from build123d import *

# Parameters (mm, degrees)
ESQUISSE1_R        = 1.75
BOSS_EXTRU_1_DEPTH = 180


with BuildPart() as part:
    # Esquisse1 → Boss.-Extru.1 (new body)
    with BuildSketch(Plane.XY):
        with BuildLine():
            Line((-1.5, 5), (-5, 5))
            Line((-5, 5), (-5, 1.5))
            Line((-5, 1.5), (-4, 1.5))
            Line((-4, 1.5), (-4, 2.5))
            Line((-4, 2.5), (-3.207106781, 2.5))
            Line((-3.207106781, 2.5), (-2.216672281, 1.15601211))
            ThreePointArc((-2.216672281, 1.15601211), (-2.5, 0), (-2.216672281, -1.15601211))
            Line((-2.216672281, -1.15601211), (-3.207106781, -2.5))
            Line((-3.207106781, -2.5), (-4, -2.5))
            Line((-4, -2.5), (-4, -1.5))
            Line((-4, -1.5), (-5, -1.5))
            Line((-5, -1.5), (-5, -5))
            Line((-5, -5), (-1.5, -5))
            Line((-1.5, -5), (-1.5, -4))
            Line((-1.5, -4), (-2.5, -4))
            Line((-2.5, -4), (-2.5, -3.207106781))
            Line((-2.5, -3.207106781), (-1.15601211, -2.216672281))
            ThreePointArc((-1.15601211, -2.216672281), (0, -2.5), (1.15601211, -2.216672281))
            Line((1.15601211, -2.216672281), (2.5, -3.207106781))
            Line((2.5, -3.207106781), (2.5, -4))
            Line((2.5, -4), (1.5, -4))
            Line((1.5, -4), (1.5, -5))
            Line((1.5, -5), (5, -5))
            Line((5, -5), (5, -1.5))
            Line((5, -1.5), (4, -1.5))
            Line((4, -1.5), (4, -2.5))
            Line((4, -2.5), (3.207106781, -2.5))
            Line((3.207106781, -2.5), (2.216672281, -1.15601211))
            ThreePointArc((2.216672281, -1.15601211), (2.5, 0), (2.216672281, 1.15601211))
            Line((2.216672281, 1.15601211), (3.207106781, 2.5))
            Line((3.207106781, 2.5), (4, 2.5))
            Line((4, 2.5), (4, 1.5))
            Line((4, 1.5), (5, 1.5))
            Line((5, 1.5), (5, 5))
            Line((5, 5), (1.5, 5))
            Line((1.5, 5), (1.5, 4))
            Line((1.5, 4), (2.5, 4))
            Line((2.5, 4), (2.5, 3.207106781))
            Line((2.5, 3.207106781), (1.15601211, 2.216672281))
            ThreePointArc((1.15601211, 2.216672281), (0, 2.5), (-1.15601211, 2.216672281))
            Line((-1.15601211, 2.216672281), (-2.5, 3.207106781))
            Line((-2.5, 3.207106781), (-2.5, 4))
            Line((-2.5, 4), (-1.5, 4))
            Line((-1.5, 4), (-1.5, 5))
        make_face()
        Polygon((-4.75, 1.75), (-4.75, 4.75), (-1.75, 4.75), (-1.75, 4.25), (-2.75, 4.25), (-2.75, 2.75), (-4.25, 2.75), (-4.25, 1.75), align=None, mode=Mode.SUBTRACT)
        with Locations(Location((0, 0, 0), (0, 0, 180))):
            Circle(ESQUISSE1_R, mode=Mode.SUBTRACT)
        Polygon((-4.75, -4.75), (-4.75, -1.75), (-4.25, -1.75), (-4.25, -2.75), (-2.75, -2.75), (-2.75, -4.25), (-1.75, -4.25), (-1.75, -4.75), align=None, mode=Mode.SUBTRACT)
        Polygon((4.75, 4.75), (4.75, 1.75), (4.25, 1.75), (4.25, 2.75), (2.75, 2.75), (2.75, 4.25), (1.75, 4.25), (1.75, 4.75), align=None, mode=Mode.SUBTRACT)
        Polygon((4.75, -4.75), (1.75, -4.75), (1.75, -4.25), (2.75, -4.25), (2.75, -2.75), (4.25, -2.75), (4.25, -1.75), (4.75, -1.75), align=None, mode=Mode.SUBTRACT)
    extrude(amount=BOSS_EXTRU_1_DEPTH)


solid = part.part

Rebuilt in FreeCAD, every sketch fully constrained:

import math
import FreeCAD as App
import Part
import Sketcher
from FreeCAD import Vector

doc = App.newDocument("Part")
params = doc.addObject("Spreadsheet::Sheet", "Params")
for row, (alias, value) in enumerate([
    ("sketch1_diameter", "3.5 mm"),
    ("sketch1_radius", "2.5 mm"),
    ("sketch1_width", "1 mm"),
    ("sketch1_width2", "3 mm"),
    ("sketch1_width3", "3.5 mm"),
    ("pad1_length", "180 mm"),
], start=1):
    params.set(f"A{row}", alias)
    params.set(f"B{row}", "=" + value)
    params.setAlias(f"B{row}", alias)

body = doc.addObject("PartDesign::Body", "Body")

# Sketch on XY plane
sketch1 = body.newObject("Sketcher::SketchObject", "Sketch")
sketch1.AttachmentSupport = (doc.getObject("XY_Plane"), [""])
sketch1.MapMode = "FlatFace"
sketch1.addGeometry(Part.LineSegment(Vector(-1.5, 5, 0), Vector(-5, 5, 0)), False)
sketch1.addGeometry(Part.LineSegment(Vector(-5, 5, 0), Vector(-5, 1.5, 0)), False)
sketch1.addGeometry(Part.LineSegment(Vector(-5, 1.5, 0), Vector(-4, 1.5, 0)), False)
sketch1.addGeometry(Part.LineSegment(Vector(-4, 1.5, 0), Vector(-4, 2.5, 0)), False)
sketch1.addGeometry(Part.LineSegment(Vector(-4, 2.5, 0), Vector(-3.207107, 2.5, 0)), False)
sketch1.addGeometry(Part.LineSegment(Vector(-3.207107, 2.5, 0), Vector(-2.216672, 1.156012, 0)), False)
sketch1.addGeometry(Part.ArcOfCircle(Part.Circle(Vector(0, 0, 0), Vector(0, 0, 1), 2.5), math.radians(152.457603), math.radians(207.542397)), False)
sketch1.addGeometry(Part.LineSegment(Vector(-2.216672, -1.156012, 0), Vector(-3.207107, -2.5, 0)), False)
sketch1.addGeometry(Part.LineSegment(Vector(-3.207107, -2.5, 0), Vector(-4, -2.5, 0)), False)
sketch1.addGeometry(Part.LineSegment(Vector(-4, -2.5, 0), Vector(-4, -1.5, 0)), False)
sketch1.addGeometry(Part.LineSegment(Vector(-4, -1.5, 0), Vector(-5, -1.5, 0)), False)
sketch1.addGeometry(Part.LineSegment(Vector(-5, -1.5, 0), Vector(-5, -5, 0)), False)
sketch1.addGeometry(Part.LineSegment(Vector(-5, -5, 0), Vector(-1.5, -5, 0)), False)
sketch1.addGeometry(Part.LineSegment(Vector(-1.5, -5, 0), Vector(-1.5, -4, 0)), False)
sketch1.addGeometry(Part.LineSegment(Vector(-1.5, -4, 0), Vector(-2.5, -4, 0)), False)
sketch1.addGeometry(Part.LineSegment(Vector(-2.5, -4, 0), Vector(-2.5, -3.207107, 0)), False)
sketch1.addGeometry(Part.LineSegment(Vector(-2.5, -3.207107, 0), Vector(-1.156012, -2.216672, 0)), False)
sketch1.addGeometry(Part.ArcOfCircle(Part.Circle(Vector(0, 0, 0), Vector(0, 0, 1), 2.5), math.radians(-117.542397), math.radians(-62.457603)), False)
sketch1.addGeometry(Part.LineSegment(Vector(1.156012, -2.216672, 0), Vector(2.5, -3.207107, 0)), False)
sketch1.addGeometry(Part.LineSegment(Vector(2.5, -3.207107, 0), Vector(2.5, -4, 0)), False)
sketch1.addGeometry(Part.LineSegment(Vector(2.5, -4, 0), Vector(1.5, -4, 0)), False)
sketch1.addGeometry(Part.LineSegment(Vector(1.5, -4, 0), Vector(1.5, -5, 0)), False)
sketch1.addGeometry(Part.LineSegment(Vector(1.5, -5, 0), Vector(5, -5, 0)), False)
sketch1.addGeometry(Part.LineSegment(Vector(5, -5, 0), Vector(5, -1.5, 0)), False)
sketch1.addGeometry(Part.LineSegment(Vector(5, -1.5, 0), Vector(4, -1.5, 0)), False)
sketch1.addGeometry(Part.LineSegment(Vector(4, -1.5, 0), Vector(4, -2.5, 0)), False)
sketch1.addGeometry(Part.LineSegment(Vector(4, -2.5, 0), Vector(3.207107, -2.5, 0)), False)
sketch1.addGeometry(Part.LineSegment(Vector(3.207107, -2.5, 0), Vector(2.216672, -1.156012, 0)), False)
sketch1.addGeometry(Part.ArcOfCircle(Part.Circle(Vector(0, 0, 0), Vector(0, 0, 1), 2.5), math.radians(-27.542397), math.radians(27.542397)), False)
sketch1.addGeometry(Part.LineSegment(Vector(2.216672, 1.156012, 0), Vector(3.207107, 2.5, 0)), False)
sketch1.addGeometry(Part.LineSegment(Vector(3.207107, 2.5, 0), Vector(4, 2.5, 0)), False)
sketch1.addGeometry(Part.LineSegment(Vector(4, 2.5, 0), Vector(4, 1.5, 0)), False)
sketch1.addGeometry(Part.LineSegment(Vector(4, 1.5, 0), Vector(5, 1.5, 0)), False)
sketch1.addGeometry(Part.LineSegment(Vector(5, 1.5, 0), Vector(5, 5, 0)), False)
sketch1.addGeometry(Part.LineSegment(Vector(5, 5, 0), Vector(1.5, 5, 0)), False)
sketch1.addGeometry(Part.LineSegment(Vector(1.5, 5, 0), Vector(1.5, 4, 0)), False)
sketch1.addGeometry(Part.LineSegment(Vector(1.5, 4, 0), Vector(2.5, 4, 0)), False)
sketch1.addGeometry(Part.LineSegment(Vector(2.5, 4, 0), Vector(2.5, 3.207107, 0)), False)
sketch1.addGeometry(Part.LineSegment(Vector(2.5, 3.207107, 0), Vector(1.156012, 2.216672, 0)), False)
sketch1.addGeometry(Part.ArcOfCircle(Part.Circle(Vector(0, 0, 0), Vector(0, 0, 1), 2.5), math.radians(62.457603), math.radians(117.542397)), False)
sketch1.addGeometry(Part.LineSegment(Vector(-1.156012, 2.216672, 0), Vector(-2.5, 3.207107, 0)), False)
sketch1.addGeometry(Part.LineSegment(Vector(-2.5, 3.207107, 0), Vector(-2.5, 4, 0)), False)
sketch1.addGeometry(Part.LineSegment(Vector(-2.5, 4, 0), Vector(-1.5, 4, 0)), False)
sketch1.addGeometry(Part.LineSegment(Vector(-1.5, 4, 0), Vector(-1.5, 5, 0)), False)
sketch1.addGeometry(Part.LineSegment(Vector(-1.75, -4.75, 0), Vector(-4.75, -4.75, 0)), False)
sketch1.addGeometry(Part.LineSegment(Vector(-4.75, -4.75, 0), Vector(-4.75, -1.75, 0)), False)
sketch1.addGeometry(Part.LineSegment(Vector(-4.75, -1.75, 0), Vector(-4.25, -1.75, 0)), False)
sketch1.addGeometry(Part.LineSegment(Vector(-4.25, -1.75, 0), Vector(-4.25, -2.75, 0)), False)
sketch1.addGeometry(Part.LineSegment(Vector(-4.25, -2.75, 0), Vector(-2.75, -2.75, 0)), False)
sketch1.addGeometry(Part.LineSegment(Vector(-2.75, -2.75, 0), Vector(-2.75, -4.25, 0)), False)
sketch1.addGeometry(Part.LineSegment(Vector(-2.75, -4.25, 0), Vector(-1.75, -4.25, 0)), False)
sketch1.addGeometry(Part.LineSegment(Vector(-1.75, -4.25, 0), Vector(-1.75, -4.75, 0)), False)
sketch1.addGeometry(Part.LineSegment(Vector(4.75, -1.75, 0), Vector(4.75, -4.75, 0)), False)
sketch1.addGeometry(Part.LineSegment(Vector(4.75, -4.75, 0), Vector(1.75, -4.75, 0)), False)
sketch1.addGeometry(Part.LineSegment(Vector(1.75, -4.75, 0), Vector(1.75, -4.25, 0)), False)
sketch1.addGeometry(Part.LineSegment(Vector(1.75, -4.25, 0), Vector(2.75, -4.25, 0)), False)
sketch1.addGeometry(Part.LineSegment(Vector(2.75, -4.25, 0), Vector(2.75, -2.75, 0)), False)
sketch1.addGeometry(Part.LineSegment(Vector(2.75, -2.75, 0), Vector(4.25, -2.75, 0)), False)
sketch1.addGeometry(Part.LineSegment(Vector(4.25, -2.75, 0), Vector(4.25, -1.75, 0)), False)
sketch1.addGeometry(Part.LineSegment(Vector(4.25, -1.75, 0), Vector(4.75, -1.75, 0)), False)
sketch1.addGeometry(Part.LineSegment(Vector(-4.25, 1.75, 0), Vector(-4.75, 1.75, 0)), False)
sketch1.addGeometry(Part.LineSegment(Vector(-4.75, 1.75, 0), Vector(-4.75, 4.75, 0)), False)
sketch1.addGeometry(Part.LineSegment(Vector(-4.75, 4.75, 0), Vector(-1.75, 4.75, 0)), False)
sketch1.addGeometry(Part.LineSegment(Vector(-1.75, 4.75, 0), Vector(-1.75, 4.25, 0)), False)
sketch1.addGeometry(Part.LineSegment(Vector(-1.75, 4.25, 0), Vector(-2.75, 4.25, 0)), False)
sketch1.addGeometry(Part.LineSegment(Vector(-2.75, 4.25, 0), Vector(-2.75, 2.75, 0)), False)
sketch1.addGeometry(Part.LineSegment(Vector(-2.75, 2.75, 0), Vector(-4.25, 2.75, 0)), False)
sketch1.addGeometry(Part.LineSegment(Vector(-4.25, 2.75, 0), Vector(-4.25, 1.75, 0)), False)
sketch1.addGeometry(Part.Circle(Vector(0, 0, 0), Vector(0, 0, 1), 1.75), False)
sketch1.addGeometry(Part.LineSegment(Vector(1.75, 4.75, 0), Vector(4.75, 4.75, 0)), False)
sketch1.addGeometry(Part.LineSegment(Vector(4.75, 4.75, 0), Vector(4.75, 1.75, 0)), False)
sketch1.addGeometry(Part.LineSegment(Vector(4.75, 1.75, 0), Vector(4.25, 1.75, 0)), False)
sketch1.addGeometry(Part.LineSegment(Vector(4.25, 1.75, 0), Vector(4.25, 2.75, 0)), False)
sketch1.addGeometry(Part.LineSegment(Vector(4.25, 2.75, 0), Vector(2.75, 2.75, 0)), False)
sketch1.addGeometry(Part.LineSegment(Vector(2.75, 2.75, 0), Vector(2.75, 4.25, 0)), False)
sketch1.addGeometry(Part.LineSegment(Vector(2.75, 4.25, 0), Vector(1.75, 4.25, 0)), False)
sketch1.addGeometry(Part.LineSegment(Vector(1.75, 4.25, 0), Vector(1.75, 4.75, 0)), False)
sketch1.addConstraint(Sketcher.Constraint("Coincident", 0, 2, 1, 1))
sketch1.addConstraint(Sketcher.Constraint("Coincident", 1, 2, 2, 1))
sketch1.addConstraint(Sketcher.Constraint("Coincident", 2, 2, 3, 1))
sketch1.addConstraint(Sketcher.Constraint("Coincident", 3, 2, 4, 1))
sketch1.addConstraint(Sketcher.Constraint("Coincident", 4, 2, 5, 1))
sketch1.addConstraint(Sketcher.Constraint("Coincident", 5, 2, 6, 1))
sketch1.addConstraint(Sketcher.Constraint("Coincident", 6, 2, 7, 1))
sketch1.addConstraint(Sketcher.Constraint("Coincident", 7, 2, 8, 1))
sketch1.addConstraint(Sketcher.Constraint("Coincident", 8, 2, 9, 1))
sketch1.addConstraint(Sketcher.Constraint("Coincident", 9, 2, 10, 1))
sketch1.addConstraint(Sketcher.Constraint("Coincident", 10, 2, 11, 1))
sketch1.addConstraint(Sketcher.Constraint("Coincident", 11, 2, 12, 1))
sketch1.addConstraint(Sketcher.Constraint("Coincident", 12, 2, 13, 1))
sketch1.addConstraint(Sketcher.Constraint("Coincident", 13, 2, 14, 1))
sketch1.addConstraint(Sketcher.Constraint("Coincident", 14, 2, 15, 1))
sketch1.addConstraint(Sketcher.Constraint("Coincident", 15, 2, 16, 1))
sketch1.addConstraint(Sketcher.Constraint("Coincident", 16, 2, 17, 1))
sketch1.addConstraint(Sketcher.Constraint("Coincident", 17, 2, 18, 1))
sketch1.addConstraint(Sketcher.Constraint("Coincident", 18, 2, 19, 1))
sketch1.addConstraint(Sketcher.Constraint("Coincident", 19, 2, 20, 1))
sketch1.addConstraint(Sketcher.Constraint("Coincident", 20, 2, 21, 1))
sketch1.addConstraint(Sketcher.Constraint("Coincident", 21, 2, 22, 1))
sketch1.addConstraint(Sketcher.Constraint("Coincident", 22, 2, 23, 1))
sketch1.addConstraint(Sketcher.Constraint("Coincident", 23, 2, 24, 1))
sketch1.addConstraint(Sketcher.Constraint("Coincident", 24, 2, 25, 1))
sketch1.addConstraint(Sketcher.Constraint("Coincident", 25, 2, 26, 1))
sketch1.addConstraint(Sketcher.Constraint("Coincident", 26, 2, 27, 1))
sketch1.addConstraint(Sketcher.Constraint("Coincident", 27, 2, 28, 1))
sketch1.addConstraint(Sketcher.Constraint("Coincident", 28, 2, 29, 1))
sketch1.addConstraint(Sketcher.Constraint("Coincident", 29, 2, 30, 1))
sketch1.addConstraint(Sketcher.Constraint("Coincident", 30, 2, 31, 1))
sketch1.addConstraint(Sketcher.Constraint("Coincident", 31, 2, 32, 1))
sketch1.addConstraint(Sketcher.Constraint("Coincident", 32, 2, 33, 1))
sketch1.addConstraint(Sketcher.Constraint("Coincident", 33, 2, 34, 1))
sketch1.addConstraint(Sketcher.Constraint("Coincident", 34, 2, 35, 1))
sketch1.addConstraint(Sketcher.Constraint("Coincident", 35, 2, 36, 1))
sketch1.addConstraint(Sketcher.Constraint("Coincident", 36, 2, 37, 1))
sketch1.addConstraint(Sketcher.Constraint("Coincident", 37, 2, 38, 1))
sketch1.addConstraint(Sketcher.Constraint("Coincident", 38, 2, 39, 1))
sketch1.addConstraint(Sketcher.Constraint("Coincident", 39, 2, 40, 1))
sketch1.addConstraint(Sketcher.Constraint("Coincident", 40, 2, 41, 1))
sketch1.addConstraint(Sketcher.Constraint("Coincident", 41, 2, 42, 1))
sketch1.addConstraint(Sketcher.Constraint("Coincident", 42, 2, 43, 1))
sketch1.addConstraint(Sketcher.Constraint("Coincident", 43, 2, 0, 1))
sketch1.addConstraint(Sketcher.Constraint("Coincident", 44, 2, 45, 1))
sketch1.addConstraint(Sketcher.Constraint("Coincident", 45, 2, 46, 1))
sketch1.addConstraint(Sketcher.Constraint("Coincident", 46, 2, 47, 1))
sketch1.addConstraint(Sketcher.Constraint("Coincident", 47, 2, 48, 1))
sketch1.addConstraint(Sketcher.Constraint("Coincident", 48, 2, 49, 1))
sketch1.addConstraint(Sketcher.Constraint("Coincident", 49, 2, 50, 1))
sketch1.addConstraint(Sketcher.Constraint("Coincident", 50, 2, 51, 1))
sketch1.addConstraint(Sketcher.Constraint("Coincident", 51, 2, 44, 1))
sketch1.addConstraint(Sketcher.Constraint("Coincident", 52, 2, 53, 1))
sketch1.addConstraint(Sketcher.Constraint("Coincident", 53, 2, 54, 1))
sketch1.addConstraint(Sketcher.Constraint("Coincident", 54, 2, 55, 1))
sketch1.addConstraint(Sketcher.Constraint("Coincident", 55, 2, 56, 1))
sketch1.addConstraint(Sketcher.Constraint("Coincident", 56, 2, 57, 1))
sketch1.addConstraint(Sketcher.Constraint("Coincident", 57, 2, 58, 1))
sketch1.addConstraint(Sketcher.Constraint("Coincident", 58, 2, 59, 1))
sketch1.addConstraint(Sketcher.Constraint("Coincident", 59, 2, 52, 1))
sketch1.addConstraint(Sketcher.Constraint("Coincident", 60, 2, 61, 1))
sketch1.addConstraint(Sketcher.Constraint("Coincident", 61, 2, 62, 1))
sketch1.addConstraint(Sketcher.Constraint("Coincident", 62, 2, 63, 1))
sketch1.addConstraint(Sketcher.Constraint("Coincident", 63, 2, 64, 1))
sketch1.addConstraint(Sketcher.Constraint("Coincident", 64, 2, 65, 1))
sketch1.addConstraint(Sketcher.Constraint("Coincident", 65, 2, 66, 1))
sketch1.addConstraint(Sketcher.Constraint("Coincident", 66, 2, 67, 1))
sketch1.addConstraint(Sketcher.Constraint("Coincident", 67, 2, 60, 1))
sketch1.addConstraint(Sketcher.Constraint("Coincident", 69, 2, 70, 1))
sketch1.addConstraint(Sketcher.Constraint("Coincident", 70, 2, 71, 1))
sketch1.addConstraint(Sketcher.Constraint("Coincident", 71, 2, 72, 1))
sketch1.addConstraint(Sketcher.Constraint("Coincident", 72, 2, 73, 1))
sketch1.addConstraint(Sketcher.Constraint("Coincident", 73, 2, 74, 1))
sketch1.addConstraint(Sketcher.Constraint("Coincident", 74, 2, 75, 1))
sketch1.addConstraint(Sketcher.Constraint("Coincident", 75, 2, 76, 1))
sketch1.addConstraint(Sketcher.Constraint("Coincident", 76, 2, 69, 1))
sketch1.addConstraint(Sketcher.Constraint("Horizontal", 0))
sketch1.addConstraint(Sketcher.Constraint("Vertical", 1))
sketch1.addConstraint(Sketcher.Constraint("Horizontal", 2))
sketch1.addConstraint(Sketcher.Constraint("Vertical", 3))
sketch1.addConstraint(Sketcher.Constraint("Horizontal", 4))
sketch1.addConstraint(Sketcher.Constraint("Horizontal", 8))
sketch1.addConstraint(Sketcher.Constraint("Vertical", 9))
sketch1.addConstraint(Sketcher.Constraint("Horizontal", 10))
sketch1.addConstraint(Sketcher.Constraint("Vertical", 11))
sketch1.addConstraint(Sketcher.Constraint("Horizontal", 12))
sketch1.addConstraint(Sketcher.Constraint("Vertical", 13))
sketch1.addConstraint(Sketcher.Constraint("Horizontal", 14))
sketch1.addConstraint(Sketcher.Constraint("Vertical", 15))
sketch1.addConstraint(Sketcher.Constraint("Vertical", 19))
sketch1.addConstraint(Sketcher.Constraint("Horizontal", 20))
sketch1.addConstraint(Sketcher.Constraint("Vertical", 21))
sketch1.addConstraint(Sketcher.Constraint("Horizontal", 22))
sketch1.addConstraint(Sketcher.Constraint("Vertical", 23))
sketch1.addConstraint(Sketcher.Constraint("Horizontal", 24))
sketch1.addConstraint(Sketcher.Constraint("Vertical", 25))
sketch1.addConstraint(Sketcher.Constraint("Horizontal", 26))
sketch1.addConstraint(Sketcher.Constraint("Horizontal", 30))
sketch1.addConstraint(Sketcher.Constraint("Vertical", 31))
sketch1.addConstraint(Sketcher.Constraint("Horizontal", 32))
sketch1.addConstraint(Sketcher.Constraint("Vertical", 33))
sketch1.addConstraint(Sketcher.Constraint("Horizontal", 34))
sketch1.addConstraint(Sketcher.Constraint("Vertical", 35))
sketch1.addConstraint(Sketcher.Constraint("Horizontal", 36))
sketch1.addConstraint(Sketcher.Constraint("Vertical", 37))
sketch1.addConstraint(Sketcher.Constraint("Vertical", 41))
sketch1.addConstraint(Sketcher.Constraint("Horizontal", 42))
sketch1.addConstraint(Sketcher.Constraint("Vertical", 43))
sketch1.addConstraint(Sketcher.Constraint("Horizontal", 44))
sketch1.addConstraint(Sketcher.Constraint("Vertical", 45))
sketch1.addConstraint(Sketcher.Constraint("Horizontal", 46))
sketch1.addConstraint(Sketcher.Constraint("Vertical", 47))
sketch1.addConstraint(Sketcher.Constraint("Horizontal", 48))
sketch1.addConstraint(Sketcher.Constraint("Vertical", 49))
sketch1.addConstraint(Sketcher.Constraint("Horizontal", 50))
sketch1.addConstraint(Sketcher.Constraint("Vertical", 51))
sketch1.addConstraint(Sketcher.Constraint("Vertical", 52))
sketch1.addConstraint(Sketcher.Constraint("Horizontal", 53))
sketch1.addConstraint(Sketcher.Constraint("Vertical", 54))
sketch1.addConstraint(Sketcher.Constraint("Horizontal", 55))
sketch1.addConstraint(Sketcher.Constraint("Vertical", 56))
sketch1.addConstraint(Sketcher.Constraint("Horizontal", 57))
sketch1.addConstraint(Sketcher.Constraint("Vertical", 58))
sketch1.addConstraint(Sketcher.Constraint("Horizontal", 59))
sketch1.addConstraint(Sketcher.Constraint("Horizontal", 60))
sketch1.addConstraint(Sketcher.Constraint("Vertical", 61))
sketch1.addConstraint(Sketcher.Constraint("Horizontal", 62))
sketch1.addConstraint(Sketcher.Constraint("Vertical", 63))
sketch1.addConstraint(Sketcher.Constraint("Horizontal", 64))
sketch1.addConstraint(Sketcher.Constraint("Vertical", 65))
sketch1.addConstraint(Sketcher.Constraint("Horizontal", 66))
sketch1.addConstraint(Sketcher.Constraint("Vertical", 67))
sketch1.addConstraint(Sketcher.Constraint("Horizontal", 69))
sketch1.addConstraint(Sketcher.Constraint("Vertical", 70))
sketch1.addConstraint(Sketcher.Constraint("Horizontal", 71))
sketch1.addConstraint(Sketcher.Constraint("Vertical", 72))
sketch1.addConstraint(Sketcher.Constraint("Horizontal", 73))
sketch1.addConstraint(Sketcher.Constraint("Vertical", 74))
sketch1.addConstraint(Sketcher.Constraint("Horizontal", 75))
sketch1.addConstraint(Sketcher.Constraint("Vertical", 76))
sketch1.addConstraint(Sketcher.Constraint("Coincident", 6, 3, -1, 1))
sketch1.addConstraint(Sketcher.Constraint("Coincident", 17, 3, -1, 1))
sketch1.addConstraint(Sketcher.Constraint("Coincident", 28, 3, -1, 1))
sketch1.addConstraint(Sketcher.Constraint("Coincident", 39, 3, -1, 1))
sketch1.addConstraint(Sketcher.Constraint("Coincident", 68, 3, -1, 1))
sketch1.addConstraint(Sketcher.Constraint("Equal", 6, 17))
sketch1.addConstraint(Sketcher.Constraint("Equal", 17, 28))
sketch1.addConstraint(Sketcher.Constraint("Equal", 28, 39))
sketch1.addConstraint(Sketcher.Constraint("Symmetric", 0, 2, 22, 2, -1, 1))
sketch1.addConstraint(Sketcher.Constraint("Symmetric", 2, 2, 24, 2, -1, 1))
sketch1.addConstraint(Sketcher.Constraint("Symmetric", 4, 2, 26, 2, -1, 1))
sketch1.addConstraint(Sketcher.Constraint("Symmetric", 7, 2, 29, 2, -1, 1))
sketch1.addConstraint(Sketcher.Constraint("Symmetric", 9, 2, 31, 2, -1, 1))
sketch1.addConstraint(Sketcher.Constraint("Symmetric", 11, 2, 33, 2, -1, 1))
sketch1.addConstraint(Sketcher.Constraint("Symmetric", 13, 2, 35, 2, -1, 1))
sketch1.addConstraint(Sketcher.Constraint("Symmetric", 15, 2, 37, 2, -1, 1))
sketch1.addConstraint(Sketcher.Constraint("Symmetric", 18, 2, 40, 2, -1, 1))
sketch1.addConstraint(Sketcher.Constraint("Symmetric", 20, 2, 42, 2, -1, 1))
sketch1.addConstraint(Sketcher.Constraint("Symmetric", 59, 2, 60, 2, -1, 1))
sketch1.addConstraint(Sketcher.Constraint("Symmetric", 53, 2, 62, 2, -1, 1))
sketch1.addConstraint(Sketcher.Constraint("Symmetric", 55, 2, 64, 2, -1, 1))
sketch1.addConstraint(Sketcher.Constraint("Symmetric", 57, 2, 66, 2, -1, 1))
sketch1.addConstraint(Sketcher.Constraint("Symmetric", 44, 2, 69, 2, -1, 1))
sketch1.addConstraint(Sketcher.Constraint("Symmetric", 46, 2, 71, 2, -1, 1))
sketch1.addConstraint(Sketcher.Constraint("Symmetric", 48, 2, 73, 2, -1, 1))
sketch1.addConstraint(Sketcher.Constraint("Symmetric", 50, 2, 75, 2, -1, 1))
sketch1.addConstraint(Sketcher.Constraint("Symmetric", 15, 2, 18, 2, -2))
sketch1.addConstraint(Sketcher.Constraint("Symmetric", 13, 2, 20, 2, -2))
sketch1.addConstraint(Sketcher.Constraint("Symmetric", 11, 2, 22, 2, -2))
sketch1.addConstraint(Sketcher.Constraint("Symmetric", 9, 2, 24, 2, -2))
sketch1.addConstraint(Sketcher.Constraint("Symmetric", 7, 2, 26, 2, -2))
sketch1.addConstraint(Sketcher.Constraint("Symmetric", 44, 2, 52, 2, -2))
sketch1.addConstraint(Sketcher.Constraint("Symmetric", 50, 2, 54, 2, -2))
sketch1.addConstraint(Sketcher.Constraint("Symmetric", 48, 2, 56, 2, -2))
sketch1.addConstraint(Sketcher.Constraint("Symmetric", 46, 2, 58, 2, -2))
sketch1.addConstraint(Sketcher.Constraint("Perpendicular", 5, 16))
sketch1.addConstraint(Sketcher.Constraint("Perpendicular", 7, 18))
sketch1.addConstraint(Sketcher.Constraint("Perpendicular", 16, 27))
sketch1.addConstraint(Sketcher.Constraint("Perpendicular", 18, 29))
sketch1.addConstraint(Sketcher.Constraint("Perpendicular", 27, 38))
sketch1.addConstraint(Sketcher.Constraint("Perpendicular", 29, 40))
sketch1.addConstraint(Sketcher.Constraint("Horizontal", 16, 2, 17, 2))
sketch1.addConstraint(Sketcher.Constraint("Equal", 10, 14))
sketch1.addConstraint(Sketcher.Constraint("Equal", 42, 50))
sketch1.addConstraint(Sketcher.Constraint("Equal", 34, 1))
sketch1.addConstraint(Sketcher.Constraint("Equal", 75, 3))
sketch1.addConstraint(Sketcher.Constraint("Equal", 9, 13))
sketch1.addConstraint(Sketcher.Constraint("Equal", 30, 15))
sketch1.addConstraint(Sketcher.Constraint("Equal", 69, 45))
sketch1.addConstraint(Sketcher.Constraint("Equal", 43, 47))
sketch1.addConstraint(Sketcher.Constraint("Equal", 73, 49))
sketch1.addConstraint(Sketcher.Constraint("Equal", 7, 16))
sketch1.addConstraint(Sketcher.Constraint("Diameter", 68, 3.5))
sketch1.addConstraint(Sketcher.Constraint("Radius", 6, 2.5))
sketch1.addConstraint(Sketcher.Constraint("DistanceX", 2, 1, 2, 2, 1.0))
sketch1.addConstraint(Sketcher.Constraint("DistanceX", 44, 2, 44, 1, 3.0))
sketch1.addConstraint(Sketcher.Constraint("DistanceX", 0, 2, 0, 1, 3.5))
sketch1.addConstraint(Sketcher.Constraint("DistanceX", 46, 1, 46, 2, 0.5))
sketch1.addConstraint(Sketcher.Constraint("DistanceX", 0, 2, -1, 1, 5.0))
sketch1.addConstraint(Sketcher.Constraint("DistanceX", 44, 2, -1, 1, 4.75))
sketch1.addConstraint(Sketcher.Constraint("DistanceY", 44, 2, -1, 1, 4.75))
sketch1.addConstraint(Sketcher.Constraint("Distance", 5, 1.66951))
sketch1.addConstraint(Sketcher.Constraint("DistanceX", 4, 1, 4, 2, 0.792893))
sketch1.setExpression("Constraints[192]", "Params.sketch1_diameter")
sketch1.setExpression("Constraints[193]", "Params.sketch1_radius")
sketch1.setExpression("Constraints[194]", "Params.sketch1_width")
sketch1.setExpression("Constraints[195]", "Params.sketch1_width2")
sketch1.setExpression("Constraints[196]", "Params.sketch1_width3")
pad1 = body.newObject("PartDesign::Pad", "Pad")
pad1.Profile = sketch1
pad1.setExpression("Length", "Params.pad1_length")

doc.recompute()
